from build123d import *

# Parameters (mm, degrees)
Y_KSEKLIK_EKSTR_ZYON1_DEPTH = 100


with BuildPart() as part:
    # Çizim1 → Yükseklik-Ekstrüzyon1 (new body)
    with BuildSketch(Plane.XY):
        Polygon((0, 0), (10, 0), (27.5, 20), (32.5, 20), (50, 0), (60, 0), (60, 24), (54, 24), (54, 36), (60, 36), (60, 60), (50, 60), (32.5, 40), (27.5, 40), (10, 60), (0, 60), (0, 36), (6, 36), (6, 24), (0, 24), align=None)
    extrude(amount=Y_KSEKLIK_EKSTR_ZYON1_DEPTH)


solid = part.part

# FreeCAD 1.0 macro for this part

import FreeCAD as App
import Part
import Sketcher
from FreeCAD import Vector
Q = App.Units.Quantity


def add_polygon(sketch, points):
    """Adds a closed chain of lines whose ends are joined by coincident constraints."""
    first, n = sketch.GeometryCount, len(points)
    for a, b in zip(points, points[1:] + points[:1]):
        sketch.addGeometry(Part.LineSegment(App.Vector(*a, 0), App.Vector(*b, 0)), False)
    for i in range(n):
        sketch.addConstraint(Sketcher.Constraint("Coincident", first + i, 2, first + (i + 1) % n, 1))

doc = App.newDocument("Part")
params = doc.addObject("Spreadsheet::Sheet", "Params")
for row, (alias, value) in enumerate([
    ("sketch1_width", "10 mm"),
    ("sketch1_width2", "5 mm"),
    ("sketch1_width3", "6 mm"),
    ("sketch1_height", "24 mm"),
    ("sketch1_height2", "12 mm"),
    ("pad1_length", "100 mm"),
], start=1):
    params.set(f"A{row}", alias)
    params.set(f"B{row}", "=" + value)
    params.setAlias(f"B{row}", alias)

body = doc.addObject("PartDesign::Body", "Body")

sketch1 = body.newObject("Sketcher::SketchObject", "Sketch")
sketch1.AttachmentSupport = (doc.getObject("XY_Plane"), [""])
sketch1.MapMode = "FlatFace"
add_polygon(sketch1, [(0, 0), (10, 0), (27.5, 20), (32.5, 20), (50, 0), (60, 0), (60, 24), (54, 24), (54, 36), (60, 36), (60, 60), (50, 60), (32.5, 40), (27.5, 40), (10, 60), (0, 60), (0, 36), (6, 36), (6, 24), (0, 24)])
sketch1.addConstraint([
    Sketcher.Constraint("Horizontal", 0),
    Sketcher.Constraint("Horizontal", 2),
    Sketcher.Constraint("Horizontal", 4),
    Sketcher.Constraint("Vertical", 5),
    Sketcher.Constraint("Horizontal", 6),
    Sketcher.Constraint("Vertical", 7),
    Sketcher.Constraint("Horizontal", 8),
    Sketcher.Constraint("Vertical", 9),
    Sketcher.Constraint("Horizontal", 10),
    Sketcher.Constraint("Horizontal", 12),
    Sketcher.Constraint("Horizontal", 14),
    Sketcher.Constraint("Vertical", 15),
    Sketcher.Constraint("Horizontal", 16),
    Sketcher.Constraint("Vertical", 17),
    Sketcher.Constraint("Horizontal", 18),
    Sketcher.Constraint("Vertical", 19),
    Sketcher.Constraint("Coincident", 19, 2, -1, 1),
    Sketcher.Constraint("PointOnObject", 3, 2, -1),
    Sketcher.Constraint("PointOnObject", 14, 2, -2),
    Sketcher.Constraint("Parallel", 1, 11),
    Sketcher.Constraint("Parallel", 3, 13),
    Sketcher.Constraint("Horizontal", 10, 2, 13, 2),
    Sketcher.Constraint("Horizontal", 8, 2, 15, 2),
    Sketcher.Constraint("Horizontal", 6, 2, 17, 2),
    Sketcher.Constraint("Vertical", 5, 2, 8, 2),
    Sketcher.Constraint("Vertical", 3, 2, 10, 2),
    Sketcher.Constraint("Vertical", 2, 2, 11, 2),
    Sketcher.Constraint("Vertical", 1, 2, 12, 2),
    Sketcher.Constraint("Vertical", 0, 2, 13, 2),
    Sketcher.Constraint("Equal", 0, 4),
    Sketcher.Constraint("Equal", 8, 16),
    Sketcher.Constraint("Equal", 5, 9),
    Sketcher.Constraint("DistanceX", 0, 1, 0, 2, Q("10 mm")),
    Sketcher.Constraint("DistanceX", 2, 1, 2, 2, Q("5 mm")),
    Sketcher.Constraint("DistanceX", 6, 2, 6, 1, Q("6 mm")),
    Sketcher.Constraint("DistanceY", 5, 1, 5, 2, Q("24 mm")),
    Sketcher.Constraint("DistanceY", 7, 1, 7, 2, Q("12 mm")),
    Sketcher.Constraint("DistanceY", -1, 1, 1, 2, Q("20 mm")),
    Sketcher.Constraint("DistanceX", -1, 1, 3, 2, Q("50 mm")),
])
sketch1.setExpression("Constraints[52]", "Params.sketch1_width")
sketch1.setExpression("Constraints[53]", "Params.sketch1_width2")
sketch1.setExpression("Constraints[54]", "Params.sketch1_width3")
sketch1.setExpression("Constraints[55]", "Params.sketch1_height")
sketch1.setExpression("Constraints[56]", "Params.sketch1_height2")
pad1 = body.newObject("PartDesign::Pad", "Pad")
pad1.Profile = sketch1
pad1.setExpression("Length", "Params.pad1_length")

doc.recompute()
